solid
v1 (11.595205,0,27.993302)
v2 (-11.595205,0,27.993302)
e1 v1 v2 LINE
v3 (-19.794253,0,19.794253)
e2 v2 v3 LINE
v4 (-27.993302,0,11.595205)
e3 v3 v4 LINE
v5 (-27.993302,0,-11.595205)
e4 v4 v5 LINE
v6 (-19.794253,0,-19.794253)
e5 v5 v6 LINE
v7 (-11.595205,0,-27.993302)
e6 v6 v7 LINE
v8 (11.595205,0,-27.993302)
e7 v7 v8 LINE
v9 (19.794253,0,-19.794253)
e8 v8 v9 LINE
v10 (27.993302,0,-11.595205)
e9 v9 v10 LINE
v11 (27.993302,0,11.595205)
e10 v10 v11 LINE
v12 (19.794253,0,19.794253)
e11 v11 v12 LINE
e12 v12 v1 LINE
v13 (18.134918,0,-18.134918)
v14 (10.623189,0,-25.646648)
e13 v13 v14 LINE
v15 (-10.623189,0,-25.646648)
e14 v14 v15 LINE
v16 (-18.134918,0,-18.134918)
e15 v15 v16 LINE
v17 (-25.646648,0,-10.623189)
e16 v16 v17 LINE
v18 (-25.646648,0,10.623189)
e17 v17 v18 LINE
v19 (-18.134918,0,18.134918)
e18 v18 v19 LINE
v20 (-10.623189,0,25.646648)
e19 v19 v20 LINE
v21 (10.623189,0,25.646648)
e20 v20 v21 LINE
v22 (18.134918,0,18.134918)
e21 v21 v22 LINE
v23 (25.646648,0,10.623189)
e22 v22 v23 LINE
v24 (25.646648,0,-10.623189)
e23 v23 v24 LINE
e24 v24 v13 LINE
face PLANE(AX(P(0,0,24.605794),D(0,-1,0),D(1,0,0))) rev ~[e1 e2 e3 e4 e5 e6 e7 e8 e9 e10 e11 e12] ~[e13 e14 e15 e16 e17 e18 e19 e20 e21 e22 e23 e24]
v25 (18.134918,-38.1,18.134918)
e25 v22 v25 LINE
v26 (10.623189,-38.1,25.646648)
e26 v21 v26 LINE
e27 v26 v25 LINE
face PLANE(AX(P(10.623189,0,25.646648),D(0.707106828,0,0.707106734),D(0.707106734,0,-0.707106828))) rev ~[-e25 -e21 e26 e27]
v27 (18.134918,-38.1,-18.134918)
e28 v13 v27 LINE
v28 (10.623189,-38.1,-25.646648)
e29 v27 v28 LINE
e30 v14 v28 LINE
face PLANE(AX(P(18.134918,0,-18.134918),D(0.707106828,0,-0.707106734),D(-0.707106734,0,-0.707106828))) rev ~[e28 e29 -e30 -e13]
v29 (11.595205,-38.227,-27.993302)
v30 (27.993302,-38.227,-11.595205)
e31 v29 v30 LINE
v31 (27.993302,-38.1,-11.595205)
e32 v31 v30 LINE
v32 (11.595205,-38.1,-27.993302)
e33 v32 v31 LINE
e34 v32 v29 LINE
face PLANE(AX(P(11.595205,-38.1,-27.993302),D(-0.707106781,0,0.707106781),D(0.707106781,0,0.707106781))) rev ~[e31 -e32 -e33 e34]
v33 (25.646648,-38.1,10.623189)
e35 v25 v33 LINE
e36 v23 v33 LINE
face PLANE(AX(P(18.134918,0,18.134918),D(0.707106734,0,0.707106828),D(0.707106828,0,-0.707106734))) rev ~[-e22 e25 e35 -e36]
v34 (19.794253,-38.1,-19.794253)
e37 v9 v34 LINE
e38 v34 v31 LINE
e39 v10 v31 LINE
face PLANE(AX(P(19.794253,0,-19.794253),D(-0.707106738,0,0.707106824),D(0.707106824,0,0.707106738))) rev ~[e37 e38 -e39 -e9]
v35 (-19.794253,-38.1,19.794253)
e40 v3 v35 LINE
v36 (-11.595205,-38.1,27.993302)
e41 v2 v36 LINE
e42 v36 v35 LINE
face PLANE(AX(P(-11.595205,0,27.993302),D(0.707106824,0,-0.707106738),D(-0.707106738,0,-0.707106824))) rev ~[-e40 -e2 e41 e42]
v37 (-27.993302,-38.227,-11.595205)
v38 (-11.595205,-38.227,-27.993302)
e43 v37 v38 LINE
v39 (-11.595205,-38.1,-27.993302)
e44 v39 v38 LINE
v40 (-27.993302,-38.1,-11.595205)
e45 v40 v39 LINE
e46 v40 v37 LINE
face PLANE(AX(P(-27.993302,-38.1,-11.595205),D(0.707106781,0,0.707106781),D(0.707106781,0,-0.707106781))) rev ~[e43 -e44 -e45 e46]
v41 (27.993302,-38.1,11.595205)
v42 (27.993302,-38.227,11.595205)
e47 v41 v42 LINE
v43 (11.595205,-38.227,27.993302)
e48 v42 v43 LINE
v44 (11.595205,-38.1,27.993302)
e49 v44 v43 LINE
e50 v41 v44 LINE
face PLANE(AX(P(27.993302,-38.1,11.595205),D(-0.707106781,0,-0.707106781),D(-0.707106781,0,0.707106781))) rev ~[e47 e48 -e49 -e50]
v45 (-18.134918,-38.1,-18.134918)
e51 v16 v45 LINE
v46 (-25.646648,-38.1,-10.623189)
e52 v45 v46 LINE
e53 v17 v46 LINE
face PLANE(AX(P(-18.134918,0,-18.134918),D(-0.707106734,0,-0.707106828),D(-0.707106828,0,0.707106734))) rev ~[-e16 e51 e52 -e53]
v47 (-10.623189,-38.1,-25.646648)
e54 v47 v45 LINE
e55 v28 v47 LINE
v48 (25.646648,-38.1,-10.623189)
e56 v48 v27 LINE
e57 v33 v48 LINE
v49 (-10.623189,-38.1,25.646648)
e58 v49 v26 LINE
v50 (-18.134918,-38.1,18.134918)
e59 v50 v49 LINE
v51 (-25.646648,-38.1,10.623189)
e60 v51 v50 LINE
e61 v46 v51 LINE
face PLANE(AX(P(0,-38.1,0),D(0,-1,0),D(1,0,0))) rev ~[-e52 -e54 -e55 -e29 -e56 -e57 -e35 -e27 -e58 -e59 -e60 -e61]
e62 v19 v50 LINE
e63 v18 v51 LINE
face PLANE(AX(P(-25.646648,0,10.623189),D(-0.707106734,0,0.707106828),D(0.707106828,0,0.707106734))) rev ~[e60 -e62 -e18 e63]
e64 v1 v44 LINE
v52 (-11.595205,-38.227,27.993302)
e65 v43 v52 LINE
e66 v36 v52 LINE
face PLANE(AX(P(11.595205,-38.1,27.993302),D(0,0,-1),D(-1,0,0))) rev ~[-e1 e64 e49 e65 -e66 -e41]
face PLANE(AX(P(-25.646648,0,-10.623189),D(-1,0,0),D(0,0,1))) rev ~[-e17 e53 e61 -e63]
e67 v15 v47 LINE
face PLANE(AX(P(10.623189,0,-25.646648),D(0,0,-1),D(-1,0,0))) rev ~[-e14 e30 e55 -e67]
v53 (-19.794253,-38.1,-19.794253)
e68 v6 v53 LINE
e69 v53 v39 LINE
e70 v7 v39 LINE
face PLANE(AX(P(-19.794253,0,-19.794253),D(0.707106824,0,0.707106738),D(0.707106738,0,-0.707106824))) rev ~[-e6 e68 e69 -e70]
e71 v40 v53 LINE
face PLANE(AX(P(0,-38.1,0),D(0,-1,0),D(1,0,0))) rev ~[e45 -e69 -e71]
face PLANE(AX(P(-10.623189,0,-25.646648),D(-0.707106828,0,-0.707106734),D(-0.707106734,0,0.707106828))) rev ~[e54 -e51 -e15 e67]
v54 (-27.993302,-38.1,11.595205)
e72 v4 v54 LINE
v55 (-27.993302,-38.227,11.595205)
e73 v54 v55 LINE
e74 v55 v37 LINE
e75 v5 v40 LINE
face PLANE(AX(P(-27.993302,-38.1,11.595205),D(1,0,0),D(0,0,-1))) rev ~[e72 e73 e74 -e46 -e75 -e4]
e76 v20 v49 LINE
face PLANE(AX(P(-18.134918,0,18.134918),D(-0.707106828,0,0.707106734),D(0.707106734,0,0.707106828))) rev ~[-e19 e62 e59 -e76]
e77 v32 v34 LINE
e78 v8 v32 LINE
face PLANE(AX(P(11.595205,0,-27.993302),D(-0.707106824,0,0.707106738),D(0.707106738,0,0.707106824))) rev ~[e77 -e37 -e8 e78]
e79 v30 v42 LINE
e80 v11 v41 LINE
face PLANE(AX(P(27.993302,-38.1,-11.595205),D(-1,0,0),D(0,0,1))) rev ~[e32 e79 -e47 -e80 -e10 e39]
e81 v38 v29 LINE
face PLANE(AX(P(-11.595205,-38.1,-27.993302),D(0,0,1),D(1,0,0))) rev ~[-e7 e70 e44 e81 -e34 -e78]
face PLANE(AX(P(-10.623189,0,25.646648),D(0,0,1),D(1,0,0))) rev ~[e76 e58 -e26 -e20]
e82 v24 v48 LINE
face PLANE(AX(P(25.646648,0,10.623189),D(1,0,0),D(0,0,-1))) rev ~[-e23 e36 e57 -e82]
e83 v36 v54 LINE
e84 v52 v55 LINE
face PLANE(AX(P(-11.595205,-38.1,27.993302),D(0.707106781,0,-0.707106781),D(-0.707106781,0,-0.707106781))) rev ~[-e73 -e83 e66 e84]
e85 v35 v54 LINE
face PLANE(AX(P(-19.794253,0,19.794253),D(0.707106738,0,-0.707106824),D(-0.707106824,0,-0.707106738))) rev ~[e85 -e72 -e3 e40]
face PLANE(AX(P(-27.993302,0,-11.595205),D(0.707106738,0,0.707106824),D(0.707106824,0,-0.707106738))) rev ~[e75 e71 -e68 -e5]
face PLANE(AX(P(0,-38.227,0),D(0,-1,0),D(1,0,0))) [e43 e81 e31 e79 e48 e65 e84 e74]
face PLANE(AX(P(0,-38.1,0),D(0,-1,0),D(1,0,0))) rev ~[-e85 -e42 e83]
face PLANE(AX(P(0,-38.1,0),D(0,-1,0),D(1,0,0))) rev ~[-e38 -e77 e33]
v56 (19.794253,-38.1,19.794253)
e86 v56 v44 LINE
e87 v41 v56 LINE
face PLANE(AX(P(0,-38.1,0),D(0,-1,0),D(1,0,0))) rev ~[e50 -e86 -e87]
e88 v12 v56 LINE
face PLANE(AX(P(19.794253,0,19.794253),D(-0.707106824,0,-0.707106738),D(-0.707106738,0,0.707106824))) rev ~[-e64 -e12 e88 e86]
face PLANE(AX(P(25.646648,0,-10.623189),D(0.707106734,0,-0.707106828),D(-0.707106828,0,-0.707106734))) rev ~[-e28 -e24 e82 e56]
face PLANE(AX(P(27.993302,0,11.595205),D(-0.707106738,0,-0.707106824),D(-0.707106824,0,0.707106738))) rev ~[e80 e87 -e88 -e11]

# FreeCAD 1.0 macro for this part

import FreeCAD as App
import Part
import Sketcher

V = App.Vector
Q = App.Units.Quantity

doc = App.newDocument("Part")
body = doc.addObject("PartDesign::Body", "Body")

# Sketch on XZ plane
sketch1 = body.newObject("Sketcher::SketchObject", "Sketch")
sketch1.AttachmentSupport = (doc.getObject("XZ_Plane"), [""])
sketch1.MapMode = "FlatFace"
sketch1.addGeometry([
    Part.LineSegment(V(20, -20, 0), V(28, -12, 0)),  # 0
    Part.LineSegment(V(28, -12, 0), V(28, 12, 0)),  # 1
    Part.LineSegment(V(28, 12, 0), V(20, 20, 0)),  # 2
    Part.LineSegment(V(20, 20, 0), V(12, 28, 0)),  # 3
    Part.LineSegment(V(12, 28, 0), V(-12, 28, 0)),  # 4
    Part.LineSegment(V(-12, 28, 0), V(-20, 20, 0)),  # 5
    Part.LineSegment(V(-20, 20, 0), V(-28, 12, 0)),  # 6
    Part.LineSegment(V(-28, 12, 0), V(-28, -12, 0)),  # 7
    Part.LineSegment(V(-28, -12, 0), V(-20, -20, 0)),  # 8
    Part.LineSegment(V(-20, -20, 0), V(-12, -28, 0)),  # 9
    Part.LineSegment(V(-12, -28, 0), V(12, -28, 0)),  # 10
    Part.LineSegment(V(12, -28, 0), V(20, -20, 0)),  # 11
    Part.LineSegment(V(-18, 18, 0), V(-11, 26, 0)),  # 12
    Part.LineSegment(V(-11, 26, 0), V(11, 26, 0)),  # 13
    Part.LineSegment(V(11, 26, 0), V(18, 18, 0)),  # 14
    Part.LineSegment(V(18, 18, 0), V(26, 11, 0)),  # 15
    Part.LineSegment(V(26, 11, 0), V(26, -11, 0)),  # 16
    Part.LineSegment(V(26, -11, 0), V(18, -18, 0)),  # 17
    Part.LineSegment(V(18, -18, 0), V(11, -26, 0)),  # 18
    Part.LineSegment(V(11, -26, 0), V(-11, -26, 0)),  # 19
    Part.LineSegment(V(-11, -26, 0), V(-18, -18, 0)),  # 20
    Part.LineSegment(V(-18, -18, 0), V(-26, -11, 0)),  # 21
    Part.LineSegment(V(-26, -11, 0), V(-26, 11, 0)),  # 22
    Part.LineSegment(V(-26, 11, 0), V(-18, 18, 0)),  # 23
], False)
sketch1.addConstraint([
    Sketcher.Constraint("Coincident", 0, 2, 1, 1),
    Sketcher.Constraint("Coincident", 1, 2, 2, 1),
    Sketcher.Constraint("Coincident", 2, 2, 3, 1),
    Sketcher.Constraint("Coincident", 3, 2, 4, 1),
    Sketcher.Constraint("Coincident", 4, 2, 5, 1),
    Sketcher.Constraint("Coincident", 5, 2, 6, 1),
    Sketcher.Constraint("Coincident", 6, 2, 7, 1),
    Sketcher.Constraint("Coincident", 7, 2, 8, 1),
    Sketcher.Constraint("Coincident", 8, 2, 9, 1),
    Sketcher.Constraint("Coincident", 9, 2, 10, 1),
    Sketcher.Constraint("Coincident", 10, 2, 11, 1),
    Sketcher.Constraint("Coincident", 11, 2, 0, 1),
    Sketcher.Constraint("Coincident", 12, 2, 13, 1),
    Sketcher.Constraint("Coincident", 13, 2, 14, 1),
    Sketcher.Constraint("Coincident", 14, 2, 15, 1),
    Sketcher.Constraint("Coincident", 15, 2, 16, 1),
    Sketcher.Constraint("Coincident", 16, 2, 17, 1),
    Sketcher.Constraint("Coincident", 17, 2, 18, 1),
    Sketcher.Constraint("Coincident", 18, 2, 19, 1),
    Sketcher.Constraint("Coincident", 19, 2, 20, 1),
    Sketcher.Constraint("Coincident", 20, 2, 21, 1),
    Sketcher.Constraint("Coincident", 21, 2, 22, 1),
    Sketcher.Constraint("Coincident", 22, 2, 23, 1),
    Sketcher.Constraint("Coincident", 23, 2, 12, 1),
    Sketcher.Constraint("Vertical", 1),
    Sketcher.Constraint("Horizontal", 4),
    Sketcher.Constraint("Vertical", 7),
    Sketcher.Constraint("Horizontal", 10),
    Sketcher.Constraint("Horizontal", 13),
    Sketcher.Constraint("Vertical", 16),
    Sketcher.Constraint("Horizontal", 19),
    Sketcher.Constraint("Vertical", 22),
    Sketcher.Constraint("Symmetric", 0, 2, 6, 2, -1, 1),
    Sketcher.Constraint("Symmetric", 2, 2, 8, 2, -1, 1),
    Sketcher.Constraint("Symmetric", 3, 2, 9, 2, -1, 1),
    Sketcher.Constraint("Symmetric", 5, 2, 11, 2, -1, 1),
    Sketcher.Constraint("Symmetric", 12, 2, 18, 2, -1, 1),
    Sketcher.Constraint("Symmetric", 14, 2, 20, 2, -1, 1),
    Sketcher.Constraint("Symmetric", 15, 2, 21, 2, -1, 1),
    Sketcher.Constraint("Symmetric", 17, 2, 23, 2, -1, 1),
    Sketcher.Constraint("Symmetric", 2, 2, 5, 2, -2),
    Sketcher.Constraint("Symmetric", 17, 2, 20, 2, -2),
    Sketcher.Constraint("Perpendicular", 0, 2),
    Sketcher.Constraint("Parallel", 2, 3),
    Sketcher.Constraint("Perpendicular", 3, 5),
    Sketcher.Constraint("Perpendicular", 6, 8),
    Sketcher.Constraint("Perpendicular", 9, 11),
    Sketcher.Constraint("Parallel", 11, 12),
    Sketcher.Constraint("Perpendicular", 12, 14),
    Sketcher.Constraint("Parallel", 14, 15),
    Sketcher.Constraint("Perpendicular", 15, 17),
    Sketcher.Constraint("Perpendicular", 18, 20),
    Sketcher.Constraint("Perpendicular", 21, 23),
    Sketcher.Constraint("Horizontal", 1, 2, 6, 2),
    Sketcher.Constraint("Equal", 10, 1),
    Sketcher.Constraint("Equal", 19, 16),
    Sketcher.Constraint("Equal", 2, 3),
    Sketcher.Constraint("Equal", 14, 15),
    Sketcher.Constraint("DistanceX", 5, 2, 1, 2, Q("1.8813998 in")),
    Sketcher.Constraint("DistanceX", 4, 2, 4, 1, Q("23.19041 mm")),
    Sketcher.Constraint("DistanceX", 13, 1, 13, 2, Q("21.246378 mm")),
    Sketcher.Constraint("Distance", 12, Q("10.62319 mm")),
])
pad1 = body.newObject("PartDesign::Pad", "Pad")
pad1.Profile = sketch1
pad1.Length = Q("1.5 in")

# Sketch on XZ plane
sketch2 = body.newObject("Sketcher::SketchObject", "Sketch001")
sketch2.AttachmentSupport = (doc.getObject("XZ_Plane"), [""])
sketch2.MapMode = "FlatFace"
sketch2.AttachmentOffset = App.Placement(V(0, 0, 1.5 * 25.4), App.Rotation())
sketch2.addGeometry([
    Part.LineSegment(V(-12, 28, 0), V(-28, 12, 0)),  # 0
    Part.LineSegment(V(-28, 12, 0), V(-28, -12, 0)),  # 1
    Part.LineSegment(V(-28, -12, 0), V(-12, -28, 0)),  # 2
    Part.LineSegment(V(-12, -28, 0), V(12, -28, 0)),  # 3
    Part.LineSegment(V(12, -28, 0), V(28, -12, 0)),  # 4
    Part.LineSegment(V(28, -12, 0), V(28, 12, 0)),  # 5
    Part.LineSegment(V(28, 12, 0), V(12, 28, 0)),  # 6
    Part.LineSegment(V(12, 28, 0), V(-12, 28, 0)),  # 7
], False)
sketch2.addConstraint([
    Sketcher.Constraint("Coincident", 0, 2, 1, 1),
    Sketcher.Constraint("Coincident", 1, 2, 2, 1),
    Sketcher.Constraint("Coincident", 2, 2, 3, 1),
    Sketcher.Constraint("Coincident", 3, 2, 4, 1),
    Sketcher.Constraint("Coincident", 4, 2, 5, 1),
    Sketcher.Constraint("Coincident", 5, 2, 6, 1),
    Sketcher.Constraint("Coincident", 6, 2, 7, 1),
    Sketcher.Constraint("Coincident", 7, 2, 0, 1),
    Sketcher.Constraint("Vertical", 1),
    Sketcher.Constraint("Horizontal", 3),
    Sketcher.Constraint("Vertical", 5),
    Sketcher.Constraint("Horizontal", 7),
    Sketcher.Constraint("Symmetric", 0, 2, 4, 2, -1, 1),
    Sketcher.Constraint("Symmetric", 2, 2, 6, 2, -1, 1),
    Sketcher.Constraint("Perpendicular", 0, 2),
    Sketcher.Constraint("Perpendicular", 2, 4),
    Sketcher.Constraint("Perpendicular", 4, 6),
    Sketcher.Constraint("Horizontal", 1, 2, 4, 2),
    Sketcher.Constraint("Vertical", 3, 2, 6, 2),
    Sketcher.Constraint("Equal", 7, 1),
    Sketcher.Constraint("DistanceX", 3, 1, 3, 2, Q("23.19041 mm")),
    Sketcher.Constraint("DistanceX", 0, 2, -1, 1, Q("27.993302 mm")),
])
pad2 = body.newObject("PartDesign::Pad", "Pad001")
pad2.Profile = sketch2
pad2.Length = Q("0.005 in")

doc.recompute()
